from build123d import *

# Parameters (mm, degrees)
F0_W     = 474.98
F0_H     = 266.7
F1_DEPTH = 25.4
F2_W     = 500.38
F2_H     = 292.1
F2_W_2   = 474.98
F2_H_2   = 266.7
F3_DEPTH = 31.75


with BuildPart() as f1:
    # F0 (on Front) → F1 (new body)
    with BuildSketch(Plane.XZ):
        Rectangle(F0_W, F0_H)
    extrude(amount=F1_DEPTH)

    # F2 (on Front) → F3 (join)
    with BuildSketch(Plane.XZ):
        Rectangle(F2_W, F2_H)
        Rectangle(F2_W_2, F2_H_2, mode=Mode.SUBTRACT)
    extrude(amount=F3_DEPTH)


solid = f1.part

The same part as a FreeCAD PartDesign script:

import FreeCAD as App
import Part
import Sketcher
Q = App.Units.Quantity


def add_polygon(sketch, points):
    """Adds a closed chain of lines whose ends are joined by coincident constraints."""
    first, n = sketch.GeometryCount, len(points)
    for a, b in zip(points, points[1:] + points[:1]):
        sketch.addGeometry(Part.LineSegment(App.Vector(*a, 0), App.Vector(*b, 0)), False)
    for i in range(n):
        sketch.addConstraint(Sketcher.Constraint("Coincident", first + i, 2, first + (i + 1) % n, 1))

doc = App.newDocument("Part")
body = doc.addObject("PartDesign::Body", "Body")

# Sketch on XZ plane
sketch1 = body.newObject("Sketcher::SketchObject", "Sketch")
sketch1.AttachmentSupport = (doc.getObject("XZ_Plane"), [""])
sketch1.MapMode = "FlatFace"
add_polygon(sketch1, [(-237.49, 133.35), (-237.49, -133.35), (237.49, -133.35), (237.49, 133.35)])  # lines 0-3
sketch1.addConstraint(Sketcher.Constraint("Vertical", 0))
sketch1.addConstraint(Sketcher.Constraint("Horizontal", 1))
sketch1.addConstraint(Sketcher.Constraint("Vertical", 2))
sketch1.addConstraint(Sketcher.Constraint("Horizontal", 3))
sketch1.addConstraint(Sketcher.Constraint("Symmetric", 0, 2, 2, 2, -1, 1))
sketch1.addConstraint(Sketcher.Constraint("DistanceX", 1, 1, 1, 2, Q("18.7 in")))
sketch1.addConstraint(Sketcher.Constraint("DistanceY", 0, 2, 0, 1, Q("10.5 in")))
pad1 = body.newObject("PartDesign::Pad", "Pad")
pad1.Profile = sketch1
pad1.Length = Q("1 in")

# Sketch on XZ plane
sketch2 = body.newObject("Sketcher::SketchObject", "Sketch001")
sketch2.AttachmentSupport = (doc.getObject("XZ_Plane"), [""])
sketch2.MapMode = "FlatFace"
add_polygon(sketch2, [(-250.19, 146.05), (-250.19, -146.05), (250.19, -146.05), (250.19, 146.05)])  # lines 0-3
add_polygon(sketch2, [(237.49, -133.35), (-237.49, -133.35), (-237.49, 133.35), (237.49, 133.35)])  # lines 4-7
sketch2.addConstraint(Sketcher.Constraint("Vertical", 0))
sketch2.addConstraint(Sketcher.Constraint("Horizontal", 1))
sketch2.addConstraint(Sketcher.Constraint("Vertical", 2))
sketch2.addConstraint(Sketcher.Constraint("Horizontal", 3))
sketch2.addConstraint(Sketcher.Constraint("Horizontal", 4))
sketch2.addConstraint(Sketcher.Constraint("Vertical", 5))
sketch2.addConstraint(Sketcher.Constraint("Horizontal", 6))
sketch2.addConstraint(Sketcher.Constraint("Vertical", 7))
sketch2.addConstraint(Sketcher.Constraint("Symmetric", 0, 2, 2, 2, -1, 1))
sketch2.addConstraint(Sketcher.Constraint("Symmetric", 4, 2, 6, 2, -1, 1))
sketch2.addConstraint(Sketcher.Constraint("DistanceX", 1, 1, 1, 2, Q("19.7 in")))
sketch2.addConstraint(Sketcher.Constraint("DistanceX", 4, 2, 4, 1, Q("18.7 in")))
sketch2.addConstraint(Sketcher.Constraint("DistanceY", 0, 2, 0, 1, Q("11.5 in")))
sketch2.addConstraint(Sketcher.Constraint("DistanceY", 5, 1, 5, 2, Q("10.5 in")))
pad2 = body.newObject("PartDesign::Pad", "Pad001")
pad2.Profile = sketch2
pad2.Length = Q("1.25 in")

doc.recompute()
